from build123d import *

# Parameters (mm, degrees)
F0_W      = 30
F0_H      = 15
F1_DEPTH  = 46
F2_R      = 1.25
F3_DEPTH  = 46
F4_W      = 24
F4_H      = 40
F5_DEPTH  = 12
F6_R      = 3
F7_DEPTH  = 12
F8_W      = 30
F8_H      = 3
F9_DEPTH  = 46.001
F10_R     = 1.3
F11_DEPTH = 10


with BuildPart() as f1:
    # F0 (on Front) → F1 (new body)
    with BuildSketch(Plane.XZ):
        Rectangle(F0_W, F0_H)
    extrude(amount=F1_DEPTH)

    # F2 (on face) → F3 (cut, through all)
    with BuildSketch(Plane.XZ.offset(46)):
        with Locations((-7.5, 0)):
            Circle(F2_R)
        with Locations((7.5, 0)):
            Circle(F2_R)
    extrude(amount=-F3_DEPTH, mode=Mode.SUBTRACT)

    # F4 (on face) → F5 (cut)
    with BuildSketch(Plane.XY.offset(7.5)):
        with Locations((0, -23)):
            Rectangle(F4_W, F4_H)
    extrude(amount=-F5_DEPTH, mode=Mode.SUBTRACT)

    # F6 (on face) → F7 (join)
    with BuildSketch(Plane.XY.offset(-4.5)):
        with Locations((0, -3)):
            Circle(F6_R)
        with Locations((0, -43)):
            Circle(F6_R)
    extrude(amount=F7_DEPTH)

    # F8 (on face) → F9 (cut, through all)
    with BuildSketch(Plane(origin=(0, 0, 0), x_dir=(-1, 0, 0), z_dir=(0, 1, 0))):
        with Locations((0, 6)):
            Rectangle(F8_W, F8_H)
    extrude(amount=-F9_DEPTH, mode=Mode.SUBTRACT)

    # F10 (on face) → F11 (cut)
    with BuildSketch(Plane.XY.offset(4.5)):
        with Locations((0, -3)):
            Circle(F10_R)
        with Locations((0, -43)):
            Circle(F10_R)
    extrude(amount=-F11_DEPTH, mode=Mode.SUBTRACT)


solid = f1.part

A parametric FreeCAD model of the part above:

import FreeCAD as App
import Part
import Sketcher
from FreeCAD import Vector
Q = App.Units.Quantity


def add_polygon(sketch, points):
    """Adds a closed chain of lines whose ends are joined by coincident constraints."""
    first, n = sketch.GeometryCount, len(points)
    for a, b in zip(points, points[1:] + points[:1]):
        sketch.addGeometry(Part.LineSegment(App.Vector(*a, 0), App.Vector(*b, 0)), False)
    for i in range(n):
        sketch.addConstraint(Sketcher.Constraint("Coincident", first + i, 2, first + (i + 1) % n, 1))

doc = App.newDocument("Part")
params = doc.addObject("Spreadsheet::Sheet", "Params")
for row, (alias, value) in enumerate([
    ("sketch1_width", "30 mm"),
    ("sketch1_height", "15 mm"),
    ("pad1_length", "46 mm"),
    ("sketch2_diameter", "2.5 mm"),
    ("sketch3_width", "24 mm"),
    ("sketch3_height", "40 mm"),
    ("pocket2_length", "12 mm"),
    ("sketch4_diameter", "6 mm"),
    ("pad2_length", "12 mm"),
    ("sketch5_width", "30 mm"),
    ("sketch5_height", "3 mm"),
    ("sketch6_diameter", "2.6 mm"),
    ("pocket4_length", "10 mm"),
], start=1):
    params.set(f"A{row}", alias)
    params.set(f"B{row}", "=" + value)
    params.setAlias(f"B{row}", alias)

body = doc.addObject("PartDesign::Body", "Body")

sketch1 = body.newObject("Sketcher::SketchObject", "Sketch")
sketch1.AttachmentSupport = (doc.getObject("XZ_Plane"), [""])
sketch1.MapMode = "FlatFace"
add_polygon(sketch1, [(-15, 8), (-15, -8), (15, -8), (15, 8)])
sketch1.addConstraint(Sketcher.Constraint("Vertical", 0))
sketch1.addConstraint(Sketcher.Constraint("Horizontal", 1))
sketch1.addConstraint(Sketcher.Constraint("Vertical", 2))
sketch1.addConstraint(Sketcher.Constraint("Horizontal", 3))
sketch1.addConstraint(Sketcher.Constraint("Symmetric", 0, 2, 2, 2, -1, 1))
sketch1.addConstraint(Sketcher.Constraint("DistanceX", 1, 1, 1, 2, Q("30 mm")))
sketch1.addConstraint(Sketcher.Constraint("DistanceY", 0, 2, 0, 1, Q("15 mm")))
sketch1.setExpression("Constraints[9]", "Params.sketch1_width")
sketch1.setExpression("Constraints[10]", "Params.sketch1_height")
pad1 = body.newObject("PartDesign::Pad", "Pad")
pad1.Profile = sketch1
pad1.setExpression("Length", "Params.pad1_length")

sketch2 = body.newObject("Sketcher::SketchObject", "Sketch001")
sketch2.AttachmentSupport = (doc.getObject("XZ_Plane"), [""])
sketch2.MapMode = "FlatFace"
sketch2.AttachmentOffset = App.Placement(Vector(0, 0, 46), App.Rotation())
sketch2.addGeometry(Part.Circle(Vector(-7.5, 0, 0), Vector(0, 0, 1), 1.2), False)
sketch2.addGeometry(Part.Circle(Vector(7.5, 0, 0), Vector(0, 0, 1), 1.2), False)
sketch2.addConstraint(Sketcher.Constraint("Equal", 0, 1))
sketch2.addConstraint(Sketcher.Constraint("Symmetric", 0, 3, 1, 3, -1, 1))
sketch2.addConstraint(Sketcher.Constraint("PointOnObject", 0, 3, -1))
sketch2.addConstraint(Sketcher.Constraint("Diameter", 0, Q("2.5 mm")))
sketch2.addConstraint(Sketcher.Constraint("DistanceX", 0, 3, 1, 3, Q("15 mm")))
sketch2.setExpression("Constraints[3]", "Params.sketch2_diameter")
pocket1 = body.newObject("PartDesign::Pocket", "Pocket")
pocket1.Profile = sketch2
pocket1.Type = "ThroughAll"

sketch3 = body.newObject("Sketcher::SketchObject", "Sketch002")
sketch3.AttachmentSupport = (doc.getObject("XY_Plane"), [""])
sketch3.MapMode = "FlatFace"
sketch3.AttachmentOffset = App.Placement(Vector(0, 0, 7.5), App.Rotation())
add_polygon(sketch3, [(-12, -3), (-12, -43), (12, -43), (12, -3)])
sketch3.addConstraint(Sketcher.Constraint("Vertical", 0))
sketch3.addConstraint(Sketcher.Constraint("Horizontal", 1))
sketch3.addConstraint(Sketcher.Constraint("Vertical", 2))
sketch3.addConstraint(Sketcher.Constraint("Horizontal", 3))
sketch3.addConstraint(Sketcher.Constraint("DistanceX", 1, 1, 1, 2, Q("24 mm")))
sketch3.addConstraint(Sketcher.Constraint("DistanceY", 0, 2, 0, 1, Q("40 mm")))
sketch3.addConstraint(Sketcher.Constraint("DistanceX", 0, 2, -1, 1, Q("12 mm")))
sketch3.addConstraint(Sketcher.Constraint("DistanceY", 0, 2, -1, 1, Q("43 mm")))
sketch3.setExpression("Constraints[8]", "Params.sketch3_width")
sketch3.setExpression("Constraints[9]", "Params.sketch3_height")
pocket2 = body.newObject("PartDesign::Pocket", "Pocket001")
pocket2.Profile = sketch3
pocket2.setExpression("Length", "Params.pocket2_length")

sketch4 = body.newObject("Sketcher::SketchObject", "Sketch003")
sketch4.AttachmentSupport = (doc.getObject("XY_Plane"), [""])
sketch4.MapMode = "FlatFace"
sketch4.AttachmentOffset = App.Placement(Vector(0, 0, -4.5), App.Rotation())
sketch4.addGeometry(Part.Circle(Vector(0, -3, 0), Vector(0, 0, 1), 3), False)
sketch4.addGeometry(Part.Circle(Vector(0, -43, 0), Vector(0, 0, 1), 3), False)
sketch4.addConstraint(Sketcher.Constraint("Equal", 0, 1))
sketch4.addConstraint(Sketcher.Constraint("PointOnObject", 0, 3, -2))
sketch4.addConstraint(Sketcher.Constraint("PointOnObject", 1, 3, -2))
sketch4.addConstraint(Sketcher.Constraint("Diameter", 0, Q("6 mm")))
sketch4.addConstraint(Sketcher.Constraint("DistanceY", 0, 3, -1, 1, Q("3 mm")))
sketch4.addConstraint(Sketcher.Constraint("DistanceY", 1, 3, -1, 1, Q("43 mm")))
sketch4.setExpression("Constraints[3]", "Params.sketch4_diameter")
pad2 = body.newObject("PartDesign::Pad", "Pad001")
pad2.Profile = sketch4
pad2.setExpression("Length", "Params.pad2_length")

sketch5 = body.newObject("Sketcher::SketchObject", "Sketch004")
sketch5.AttachmentSupport = (doc.getObject("XZ_Plane"), [""])
sketch5.MapMode = "FlatFace"
add_polygon(sketch5, [(15, 7.5), (15, 4.5), (-15, 4.5), (-15, 7.5)])
sketch5.addConstraint(Sketcher.Constraint("Vertical", 0))
sketch5.addConstraint(Sketcher.Constraint("Horizontal", 1))
sketch5.addConstraint(Sketcher.Constraint("Vertical", 2))
sketch5.addConstraint(Sketcher.Constraint("Horizontal", 3))
sketch5.addConstraint(Sketcher.Constraint("DistanceX", 1, 2, 1, 1, Q("30 mm")))
sketch5.addConstraint(Sketcher.Constraint("DistanceY", 0, 2, 0, 1, Q("3 mm")))
sketch5.addConstraint(Sketcher.Constraint("DistanceX", -1, 1, 0, 2, Q("15 mm")))
sketch5.addConstraint(Sketcher.Constraint("DistanceY", -1, 1, 0, 2, Q("4.5 mm")))
sketch5.setExpression("Constraints[8]", "Params.sketch5_width")
sketch5.setExpression("Constraints[9]", "Params.sketch5_height")
pocket3 = body.newObject("PartDesign::Pocket", "Pocket002")
pocket3.Profile = sketch5
pocket3.Type = "ThroughAll"
pocket3.Reversed = True

sketch6 = body.newObject("Sketcher::SketchObject", "Sketch005")
sketch6.AttachmentSupport = (doc.getObject("XY_Plane"), [""])
sketch6.MapMode = "FlatFace"
sketch6.AttachmentOffset = App.Placement(Vector(0, 0, 4.5), App.Rotation())
sketch6.addGeometry(Part.Circle(Vector(0, -3, 0), Vector(0, 0, 1), 1.3), False)
sketch6.addGeometry(Part.Circle(Vector(0, -43, 0), Vector(0, 0, 1), 1.3), False)
sketch6.addConstraint(Sketcher.Constraint("Equal", 0, 1))
sketch6.addConstraint(Sketcher.Constraint("PointOnObject", 0, 3, -2))
sketch6.addConstraint(Sketcher.Constraint("PointOnObject", 1, 3, -2))
sketch6.addConstraint(Sketcher.Constraint("Diameter", 0, Q("2.6 mm")))
sketch6.addConstraint(Sketcher.Constraint("DistanceY", 0, 3, -1, 1, Q("3 mm")))
sketch6.addConstraint(Sketcher.Constraint("DistanceY", 1, 3, -1, 1, Q("43 mm")))
sketch6.setExpression("Constraints[3]", "Params.sketch6_diameter")
pocket4 = body.newObject("PartDesign::Pocket", "Pocket003")
pocket4.Profile = sketch6
pocket4.setExpression("Length", "Params.pocket4_length")

doc.recompute()
